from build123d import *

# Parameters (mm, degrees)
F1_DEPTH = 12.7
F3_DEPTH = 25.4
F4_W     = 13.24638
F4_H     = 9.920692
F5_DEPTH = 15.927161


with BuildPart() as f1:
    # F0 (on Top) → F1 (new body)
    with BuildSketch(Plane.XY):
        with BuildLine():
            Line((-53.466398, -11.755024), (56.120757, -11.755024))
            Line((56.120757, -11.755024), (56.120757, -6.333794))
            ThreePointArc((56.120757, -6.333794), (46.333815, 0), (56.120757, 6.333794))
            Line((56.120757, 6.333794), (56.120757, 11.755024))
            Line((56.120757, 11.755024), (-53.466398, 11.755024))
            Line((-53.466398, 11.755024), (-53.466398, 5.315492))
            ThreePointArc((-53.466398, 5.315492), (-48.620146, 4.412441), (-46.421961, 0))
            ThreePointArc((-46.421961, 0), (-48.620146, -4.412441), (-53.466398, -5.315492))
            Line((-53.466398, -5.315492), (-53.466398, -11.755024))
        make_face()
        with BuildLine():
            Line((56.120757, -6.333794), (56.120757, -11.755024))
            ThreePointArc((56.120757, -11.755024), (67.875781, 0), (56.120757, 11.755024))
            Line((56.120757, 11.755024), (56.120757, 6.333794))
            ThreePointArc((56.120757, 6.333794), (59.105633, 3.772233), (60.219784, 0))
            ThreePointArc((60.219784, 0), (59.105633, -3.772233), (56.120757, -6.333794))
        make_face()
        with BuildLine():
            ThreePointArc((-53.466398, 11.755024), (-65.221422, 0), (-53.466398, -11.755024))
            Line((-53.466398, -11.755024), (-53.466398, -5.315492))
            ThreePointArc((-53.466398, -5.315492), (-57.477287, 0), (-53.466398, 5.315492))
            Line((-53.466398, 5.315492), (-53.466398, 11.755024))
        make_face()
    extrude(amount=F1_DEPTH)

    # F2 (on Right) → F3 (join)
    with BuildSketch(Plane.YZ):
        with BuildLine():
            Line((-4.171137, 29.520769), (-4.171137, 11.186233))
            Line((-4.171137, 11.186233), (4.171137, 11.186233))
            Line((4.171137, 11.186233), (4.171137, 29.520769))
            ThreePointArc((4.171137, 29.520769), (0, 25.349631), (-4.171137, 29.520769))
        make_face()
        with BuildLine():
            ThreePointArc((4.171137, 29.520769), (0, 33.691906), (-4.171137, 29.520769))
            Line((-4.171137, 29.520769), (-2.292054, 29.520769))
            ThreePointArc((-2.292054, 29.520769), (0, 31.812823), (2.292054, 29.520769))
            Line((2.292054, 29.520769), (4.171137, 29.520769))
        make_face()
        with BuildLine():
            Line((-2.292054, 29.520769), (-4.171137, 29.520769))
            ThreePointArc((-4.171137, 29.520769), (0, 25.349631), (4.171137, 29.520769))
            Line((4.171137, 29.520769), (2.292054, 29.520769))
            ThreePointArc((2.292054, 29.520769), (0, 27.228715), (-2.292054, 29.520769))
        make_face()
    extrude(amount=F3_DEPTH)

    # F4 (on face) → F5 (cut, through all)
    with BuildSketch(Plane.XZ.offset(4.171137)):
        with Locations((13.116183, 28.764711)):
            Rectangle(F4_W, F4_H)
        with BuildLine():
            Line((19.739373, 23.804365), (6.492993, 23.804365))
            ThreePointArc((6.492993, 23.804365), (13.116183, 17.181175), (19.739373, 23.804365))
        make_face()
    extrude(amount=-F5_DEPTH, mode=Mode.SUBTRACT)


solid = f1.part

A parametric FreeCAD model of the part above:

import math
import FreeCAD as App
import Part
import Sketcher
from FreeCAD import Vector
Q = App.Units.Quantity

doc = App.newDocument("Part")
params = doc.addObject("Spreadsheet::Sheet", "Params")
for row, (alias, value) in enumerate([
    ("pad1_length", "0.5 in"),
    ("pad2_length", "1 in"),
], start=1):
    params.set(f"A{row}", alias)
    params.set(f"B{row}", "=" + value)
    params.setAlias(f"B{row}", alias)

body = doc.addObject("PartDesign::Body", "Body")

# Sketch on XY plane
sketch1 = doc.addObject("Sketcher::SketchObject", "Sketch")
body.addObject(sketch1)
sketch1.AttachmentSupport = (doc.XY_Plane, [""])
sketch1.MapMode = "FlatFace"
sketch1.addGeometry(Part.LineSegment(Vector(-53.466398, -11.755024, 0), Vector(56.120757, -11.755024, 0)), False)
sketch1.addGeometry(Part.ArcOfCircle(Part.Circle(Vector(56.120757, 0, 0), Vector(0, 0, 1), 11.755024), math.radians(-90), math.radians(90)), False)
sketch1.addGeometry(Part.LineSegment(Vector(56.120757, 11.755024, 0), Vector(-53.466398, 11.755024, 0)), False)
sketch1.addGeometry(Part.ArcOfCircle(Part.Circle(Vector(-53.466398, 0, 0), Vector(0, 0, 1), 11.755024), math.radians(90), math.radians(270)), False)
sketch1.addGeometry(Part.ArcOfCircle(Part.Circle(Vector(-51.949624, 0, 0), Vector(0, 0, 1), 5.527663), math.radians(-0.000002), math.radians(105.926083)), False)
sketch1.addGeometry(Part.ArcOfCircle(Part.Circle(Vector(-51.949624, 0, 0), Vector(0, 0, 1), 5.527663), math.radians(-105.926083), math.radians(0.000002)), False)
sketch1.addGeometry(Part.ArcOfCircle(Part.Circle(Vector(-51.949624, 0, 0), Vector(0, 0, 1), 5.527663), math.radians(105.926081), math.radians(254.073919)), False)
sketch1.addGeometry(Part.ArcOfCircle(Part.Circle(Vector(53.2768, 0, 0), Vector(0, 0, 1), 6.942985), math.radians(65.81929), math.radians(294.18071)), False)
sketch1.addGeometry(Part.ArcOfCircle(Part.Circle(Vector(53.276801, 0.000001, 0), Vector(0, 0, 1), 6.942983), math.radians(-0.000012), math.radians(65.819293)), False)
sketch1.addGeometry(Part.ArcOfCircle(Part.Circle(Vector(53.276801, -0.000001, 0), Vector(0, 0, 1), 6.942983), math.radians(-65.819293), math.radians(0.000012)), False)
sketch1.addConstraint(Sketcher.Constraint("Tangent", 0, 2, 1, 1))
sketch1.addConstraint(Sketcher.Constraint("Tangent", 1, 2, 2, 1))
sketch1.addConstraint(Sketcher.Constraint("Tangent", 2, 2, 3, 1))
sketch1.addConstraint(Sketcher.Constraint("Tangent", 3, 2, 0, 1))
sketch1.addConstraint(Sketcher.Constraint("Tangent", 4, 1, 5, 2))
sketch1.addConstraint(Sketcher.Constraint("Tangent", 5, 1, 6, 2))
sketch1.addConstraint(Sketcher.Constraint("Tangent", 6, 1, 4, 2))
sketch1.addConstraint(Sketcher.Constraint("Tangent", 7, 1, 8, 2))
sketch1.addConstraint(Sketcher.Constraint("Tangent", 8, 1, 9, 2))
sketch1.addConstraint(Sketcher.Constraint("Tangent", 9, 1, 7, 2))
sketch1.addConstraint(Sketcher.Constraint("Horizontal", 0))
sketch1.addConstraint(Sketcher.Constraint("Horizontal", 2))
sketch1.addConstraint(Sketcher.Constraint("Symmetric", 5, 1, 6, 1, -1))
sketch1.addConstraint(Sketcher.Constraint("Symmetric", 7, 1, 9, 1, -1))
sketch1.addConstraint(Sketcher.Constraint("PointOnObject", 1, 3, -1))
sketch1.addConstraint(Sketcher.Constraint("PointOnObject", 4, 1, -1))
sketch1.addConstraint(Sketcher.Constraint("PointOnObject", 8, 1, -1))
sketch1.addConstraint(Sketcher.Constraint("Vertical", 3, 2, 5, 1))
sketch1.addConstraint(Sketcher.Constraint("Vertical", 1, 2, 7, 1))
sketch1.addConstraint(Sketcher.Constraint("Radius", 1, Q("11.755024 mm")))
sketch1.addConstraint(Sketcher.Constraint("Radius", 4, Q("5.527663 mm")))
sketch1.addConstraint(Sketcher.Constraint("Radius", 7, Q("6.942985 mm")))
sketch1.addConstraint(Sketcher.Constraint("DistanceX", -1, 1, 7, 3, Q("53.2768 mm")))
sketch1.addConstraint(Sketcher.Constraint("DistanceX", 6, 1, -1, 1, Q("53.466398 mm")))
sketch1.addConstraint(Sketcher.Constraint("DistanceX", 0, 1, 0, 2, Q("109.587155 mm")))
sketch1.addConstraint(Sketcher.Constraint("DistanceX", 4, 1, -1, 1, Q("46.421961 mm")))
pad1 = doc.addObject("PartDesign::Pad", "Pad")
body.addObject(pad1)
pad1.Profile = sketch1
pad1.setExpression("Length", "Params.pad1_length")

# Sketch on YZ plane
sketch2 = doc.addObject("Sketcher::SketchObject", "Sketch001")
body.addObject(sketch2)
sketch2.AttachmentSupport = (doc.YZ_Plane, [""])
sketch2.MapMode = "FlatFace"
sketch2.addGeometry(Part.LineSegment(Vector(-4.171137, 29.520769, 0), Vector(-4.171137, 11.186233, 0)), False)
sketch2.addGeometry(Part.LineSegment(Vector(-4.171137, 11.186233, 0), Vector(4.171137, 11.186233, 0)), False)
sketch2.addGeometry(Part.LineSegment(Vector(4.171137, 11.186233, 0), Vector(4.171137, 29.520769, 0)), False)
sketch2.addGeometry(Part.ArcOfCircle(Part.Circle(Vector(0, 29.520769, 0), Vector(0, 0, 1), 4.171137), math.radians(0), math.radians(180)), False)
sketch2.addGeometry(Part.Circle(Vector(0, 29.520769, 0), Vector(0, 0, 1), 2.292054), False)
sketch2.addConstraint(Sketcher.Constraint("Coincident", 0, 2, 1, 1))
sketch2.addConstraint(Sketcher.Constraint("Coincident", 1, 2, 2, 1))
sketch2.addConstraint(Sketcher.Constraint("Tangent", 2, 2, 3, 1))
sketch2.addConstraint(Sketcher.Constraint("Tangent", 3, 2, 0, 1))
sketch2.addConstraint(Sketcher.Constraint("Vertical", 0))
sketch2.addConstraint(Sketcher.Constraint("Horizontal", 1))
sketch2.addConstraint(Sketcher.Constraint("Vertical", 2))
sketch2.addConstraint(Sketcher.Constraint("Coincident", 4, 3, 3, 3))
sketch2.addConstraint(Sketcher.Constraint("PointOnObject", 3, 3, -2))
sketch2.addConstraint(Sketcher.Constraint("Diameter", 4, Q("4.584108 mm")))
sketch2.addConstraint(Sketcher.Constraint("Radius", 3, Q("4.171137 mm")))
sketch2.addConstraint(Sketcher.Constraint("DistanceY", 0, 2, 0, 1, Q("18.334536 mm")))
sketch2.addConstraint(Sketcher.Constraint("DistanceY", -1, 1, 3, 3, Q("29.520769 mm")))
pad2 = doc.addObject("PartDesign::Pad", "Pad001")
body.addObject(pad2)
pad2.Profile = sketch2
pad2.setExpression("Length", "Params.pad2_length")

# Sketch on XZ plane
sketch3 = doc.addObject("Sketcher::SketchObject", "Sketch002")
body.addObject(sketch3)
sketch3.AttachmentSupport = (doc.XZ_Plane, [""])
sketch3.MapMode = "FlatFace"
sketch3.AttachmentOffset = App.Placement(Vector(0, 0, 4.171137), App.Rotation())
sketch3.addGeometry(Part.LineSegment(Vector(6.492993, 33.725057, 0), Vector(6.492993, 23.804365, 0)), False)
sketch3.addGeometry(Part.ArcOfCircle(Part.Circle(Vector(13.116183, 23.804365, 0), Vector(0, 0, 1), 6.62319), math.radians(180), math.radians(360)), False)
sketch3.addGeometry(Part.LineSegment(Vector(19.739373, 23.804365, 0), Vector(19.739373, 33.725057, 0)), False)
sketch3.addGeometry(Part.LineSegment(Vector(19.739373, 33.725057, 0), Vector(6.492993, 33.725057, 0)), False)
sketch3.addConstraint(Sketcher.Constraint("Tangent", 0, 2, 1, 1))
sketch3.addConstraint(Sketcher.Constraint("Tangent", 1, 2, 2, 1))
sketch3.addConstraint(Sketcher.Constraint("Coincident", 2, 2, 3, 1))
sketch3.addConstraint(Sketcher.Constraint("Coincident", 3, 2, 0, 1))
sketch3.addConstraint(Sketcher.Constraint("Vertical", 0))
sketch3.addConstraint(Sketcher.Constraint("Vertical", 2))
sketch3.addConstraint(Sketcher.Constraint("Horizontal", 3))
sketch3.addConstraint(Sketcher.Constraint("Radius", 1, Q("6.62319 mm")))
sketch3.addConstraint(Sketcher.Constraint("DistanceY", 0, 2, 0, 1, Q("9.920692 mm")))
sketch3.addConstraint(Sketcher.Constraint("DistanceX", -1, 1, 1, 3, Q("13.116183 mm")))
sketch3.addConstraint(Sketcher.Constraint("DistanceY", -1, 1, 1, 3, Q("23.804365 mm")))
pocket1 = doc.addObject("PartDesign::Pocket", "Pocket")
body.addObject(pocket1)
pocket1.Profile = sketch3
pocket1.Type = "ThroughAll"

doc.recompute()
